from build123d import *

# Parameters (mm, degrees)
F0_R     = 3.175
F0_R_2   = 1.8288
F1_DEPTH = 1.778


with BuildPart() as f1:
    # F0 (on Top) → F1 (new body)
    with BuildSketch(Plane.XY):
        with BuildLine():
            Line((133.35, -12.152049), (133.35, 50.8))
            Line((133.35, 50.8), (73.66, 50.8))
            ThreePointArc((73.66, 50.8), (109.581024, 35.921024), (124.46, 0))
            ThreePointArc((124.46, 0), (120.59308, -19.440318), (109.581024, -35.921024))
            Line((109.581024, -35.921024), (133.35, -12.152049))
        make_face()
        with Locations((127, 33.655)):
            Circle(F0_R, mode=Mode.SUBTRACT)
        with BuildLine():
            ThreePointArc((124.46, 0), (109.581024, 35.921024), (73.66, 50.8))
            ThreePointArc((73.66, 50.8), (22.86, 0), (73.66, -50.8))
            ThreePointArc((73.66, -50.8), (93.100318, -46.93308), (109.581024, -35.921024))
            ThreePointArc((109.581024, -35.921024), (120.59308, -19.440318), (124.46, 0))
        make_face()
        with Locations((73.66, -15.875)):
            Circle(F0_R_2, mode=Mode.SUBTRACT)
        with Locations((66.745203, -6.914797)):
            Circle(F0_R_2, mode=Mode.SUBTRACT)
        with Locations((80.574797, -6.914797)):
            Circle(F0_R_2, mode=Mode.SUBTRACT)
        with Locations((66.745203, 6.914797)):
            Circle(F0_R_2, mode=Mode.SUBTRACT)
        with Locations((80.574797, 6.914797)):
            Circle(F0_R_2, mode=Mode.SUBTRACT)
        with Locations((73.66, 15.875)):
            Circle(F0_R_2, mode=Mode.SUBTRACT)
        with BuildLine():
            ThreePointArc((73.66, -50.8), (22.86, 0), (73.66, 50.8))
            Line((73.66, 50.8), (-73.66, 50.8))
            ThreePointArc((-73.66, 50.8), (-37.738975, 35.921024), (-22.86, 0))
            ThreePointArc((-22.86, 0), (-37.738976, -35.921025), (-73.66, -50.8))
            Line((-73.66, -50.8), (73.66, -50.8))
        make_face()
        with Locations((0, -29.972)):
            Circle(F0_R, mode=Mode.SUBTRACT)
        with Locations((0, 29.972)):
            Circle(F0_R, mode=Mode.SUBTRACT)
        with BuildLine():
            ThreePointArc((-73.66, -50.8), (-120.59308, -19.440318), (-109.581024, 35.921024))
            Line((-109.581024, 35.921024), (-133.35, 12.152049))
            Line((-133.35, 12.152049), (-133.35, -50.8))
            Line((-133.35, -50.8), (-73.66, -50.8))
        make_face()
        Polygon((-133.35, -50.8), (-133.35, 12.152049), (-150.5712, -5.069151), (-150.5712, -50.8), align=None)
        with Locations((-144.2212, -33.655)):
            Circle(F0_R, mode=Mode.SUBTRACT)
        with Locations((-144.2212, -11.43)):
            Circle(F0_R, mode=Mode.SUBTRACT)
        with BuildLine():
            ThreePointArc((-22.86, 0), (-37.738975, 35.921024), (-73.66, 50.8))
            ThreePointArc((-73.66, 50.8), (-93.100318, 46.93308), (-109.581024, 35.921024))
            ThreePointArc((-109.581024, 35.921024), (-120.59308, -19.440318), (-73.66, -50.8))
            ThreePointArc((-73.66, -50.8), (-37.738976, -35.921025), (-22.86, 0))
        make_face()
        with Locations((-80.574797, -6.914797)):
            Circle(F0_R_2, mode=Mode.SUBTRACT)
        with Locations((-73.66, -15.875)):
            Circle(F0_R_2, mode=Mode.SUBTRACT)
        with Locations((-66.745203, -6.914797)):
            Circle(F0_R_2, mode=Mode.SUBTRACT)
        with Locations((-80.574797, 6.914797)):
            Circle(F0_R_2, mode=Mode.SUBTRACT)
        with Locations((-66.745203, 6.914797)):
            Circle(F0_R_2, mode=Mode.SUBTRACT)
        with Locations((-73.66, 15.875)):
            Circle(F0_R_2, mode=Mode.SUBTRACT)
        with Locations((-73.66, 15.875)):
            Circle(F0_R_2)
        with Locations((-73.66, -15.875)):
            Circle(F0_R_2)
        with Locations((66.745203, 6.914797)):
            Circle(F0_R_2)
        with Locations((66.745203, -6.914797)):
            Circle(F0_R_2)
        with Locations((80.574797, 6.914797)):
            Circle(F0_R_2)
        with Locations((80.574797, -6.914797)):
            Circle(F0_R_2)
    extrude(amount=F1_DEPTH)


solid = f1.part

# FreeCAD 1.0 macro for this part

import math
import FreeCAD as App
import Part
import Sketcher

V = App.Vector
Q = App.Units.Quantity

doc = App.newDocument("Part")
body = doc.addObject("PartDesign::Body", "Body")

# Sketch on XY plane
sketch1 = body.newObject("Sketcher::SketchObject", "Sketch")
sketch1.AttachmentSupport = (doc.getObject("XY_Plane"), [""])
sketch1.MapMode = "FlatFace"
sketch1.addGeometry(Part.LineSegment(V(133.3, -12.2, 0), V(133.3, 50.8, 0)), False)
sketch1.addGeometry(Part.LineSegment(V(133.3, 50.8, 0), V(-73.7, 50.8, 0)), False)
sketch1.addGeometry(Part.ArcOfCircle(Part.Circle(V(-73.7, 0, 0), V(0, 0, 1), 50.8), math.radians(90), math.radians(135)), False)
sketch1.addGeometry(Part.LineSegment(V(-109.6, 35.9, 0), V(-133.3, 12.2, 0)), False)
sketch1.addGeometry(Part.LineSegment(V(-133.3, 12.2, 0), V(-150.6, -5.1, 0)), False)
sketch1.addGeometry(Part.LineSegment(V(-150.6, -5.1, 0), V(-150.6, -50.8, 0)), False)
sketch1.addGeometry(Part.LineSegment(V(-150.6, -50.8, 0), V(73.7, -50.8, 0)), False)
sketch1.addGeometry(Part.ArcOfCircle(Part.Circle(V(73.7, 0, 0), V(0, 0, 1), 50.8), math.radians(-90), math.radians(-45)), False)
sketch1.addGeometry(Part.LineSegment(V(109.6, -35.9, 0), V(133.3, -12.2, 0)), False)
sketch1.addGeometry(Part.Circle(V(-144.2, -33.7, 0), V(0, 0, 1), 3.2), False)
sketch1.addGeometry(Part.Circle(V(-144.2, -11.4, 0), V(0, 0, 1), 3.2), False)
sketch1.addGeometry(Part.Circle(V(-80.6, -6.9, 0), V(0, 0, 1), 1.8), False)
sketch1.addGeometry(Part.Circle(V(-66.7, -6.9, 0), V(0, 0, 1), 1.8), False)
sketch1.addGeometry(Part.Circle(V(0, -30, 0), V(0, 0, 1), 3.2), False)
sketch1.addGeometry(Part.Circle(V(73.7, -15.9, 0), V(0, 0, 1), 1.8), False)
sketch1.addGeometry(Part.Circle(V(-80.6, 6.9, 0), V(0, 0, 1), 1.8), False)
sketch1.addGeometry(Part.Circle(V(-66.7, 6.9, 0), V(0, 0, 1), 1.8), False)
sketch1.addGeometry(Part.Circle(V(73.7, 15.9, 0), V(0, 0, 1), 1.8), False)
sketch1.addGeometry(Part.Circle(V(0, 30, 0), V(0, 0, 1), 3.2), False)
sketch1.addGeometry(Part.Circle(V(127, 33.7, 0), V(0, 0, 1), 3.2), False)
sketch1.addConstraint(Sketcher.Constraint("Coincident", 0, 2, 1, 1))
sketch1.addConstraint(Sketcher.Constraint("Tangent", 1, 2, 2, 1))
sketch1.addConstraint(Sketcher.Constraint("Tangent", 2, 2, 3, 1))
sketch1.addConstraint(Sketcher.Constraint("Coincident", 3, 2, 4, 1))
sketch1.addConstraint(Sketcher.Constraint("Coincident", 4, 2, 5, 1))
sketch1.addConstraint(Sketcher.Constraint("Coincident", 5, 2, 6, 1))
sketch1.addConstraint(Sketcher.Constraint("Tangent", 6, 2, 7, 1))
sketch1.addConstraint(Sketcher.Constraint("Tangent", 7, 2, 8, 1))
sketch1.addConstraint(Sketcher.Constraint("Coincident", 8, 2, 0, 1))
sketch1.addConstraint(Sketcher.Constraint("Vertical", 0))
sketch1.addConstraint(Sketcher.Constraint("Horizontal", 1))
sketch1.addConstraint(Sketcher.Constraint("Vertical", 5))
sketch1.addConstraint(Sketcher.Constraint("Horizontal", 6))
sketch1.addConstraint(Sketcher.Constraint("Equal", 2, 7))
sketch1.addConstraint(Sketcher.Constraint("Equal", 9, 10))
sketch1.addConstraint(Sketcher.Constraint("Equal", 11, 12))
sketch1.addConstraint(Sketcher.Constraint("Equal", 10, 13))
sketch1.addConstraint(Sketcher.Constraint("Equal", 12, 14))
sketch1.addConstraint(Sketcher.Constraint("Equal", 14, 15))
sketch1.addConstraint(Sketcher.Constraint("Equal", 15, 16))
sketch1.addConstraint(Sketcher.Constraint("Equal", 16, 17))
sketch1.addConstraint(Sketcher.Constraint("Equal", 13, 18))
sketch1.addConstraint(Sketcher.Constraint("Equal", 18, 19))
sketch1.addConstraint(Sketcher.Constraint("Symmetric", 2, 3, 7, 3, -1, 1))
sketch1.addConstraint(Sketcher.Constraint("Symmetric", 13, 3, 18, 3, -1, 1))
sketch1.addConstraint(Sketcher.Constraint("Symmetric", 3, 2, 8, 2, -1, 1))
sketch1.addConstraint(Sketcher.Constraint("Symmetric", 11, 3, 15, 3, -1))
sketch1.addConstraint(Sketcher.Constraint("Symmetric", 12, 3, 16, 3, -1))
sketch1.addConstraint(Sketcher.Constraint("Symmetric", 14, 3, 17, 3, -1))
sketch1.addConstraint(Sketcher.Constraint("PointOnObject", 2, 3, -1))
sketch1.addConstraint(Sketcher.Constraint("PointOnObject", 13, 3, -2))
sketch1.addConstraint(Sketcher.Constraint("Parallel", 3, 4))
sketch1.addConstraint(Sketcher.Constraint("Horizontal", 11, 3, 12, 3))
sketch1.addConstraint(Sketcher.Constraint("Vertical", 9, 3, 10, 3))
sketch1.addConstraint(Sketcher.Constraint("Vertical", 7, 3, 14, 3))
sketch1.addConstraint(Sketcher.Constraint("Radius", 2, Q("2 in")))
sketch1.addConstraint(Sketcher.Constraint("Diameter", 9, Q("0.25 in")))
sketch1.addConstraint(Sketcher.Constraint("Diameter", 11, Q("0.144 in")))
sketch1.addConstraint(Sketcher.Constraint("DistanceX", -1, 1, 19, 3, Q("5 in")))
sketch1.addConstraint(Sketcher.Constraint("Angle", 3, Q("-135.000001 deg")))
sketch1.addConstraint(Sketcher.Constraint("DistanceX", 1, 2, 1, 1, Q("8.15 in")))
sketch1.addConstraint(Sketcher.Constraint("DistanceX", 2, 3, -1, 1, Q("2.9 in")))
sketch1.addConstraint(Sketcher.Constraint("DistanceY", 17, 3, 19, 3, Q("0.7 in")))
sketch1.addConstraint(Sketcher.Constraint("DistanceX", 6, 1, 6, 2, Q("8.828 in")))
sketch1.addConstraint(Sketcher.Constraint("DistanceY", 10, 3, -1, 1, Q("0.45 in")))
sketch1.addConstraint(Sketcher.Constraint("DistanceY", 13, 3, -1, 1, Q("1.18 in")))
sketch1.addConstraint(Sketcher.Constraint("DistanceY", 14, 3, 17, 3, Q("1.25 in")))
sketch1.addConstraint(Sketcher.Constraint("DistanceX", 4, 2, 10, 3, Q("0.25 in")))
sketch1.addConstraint(Sketcher.Constraint("DistanceY", 9, 3, -1, 1, Q("1.325 in")))
sketch1.addConstraint(Sketcher.Constraint("DistanceX", 2, 2, 16, 3, Q("42.835821 mm")))
sketch1.addConstraint(Sketcher.Constraint("DistanceY", 11, 3, 2, 2, Q("42.835821 mm")))
sketch1.addConstraint(Sketcher.Constraint("DistanceX", 11, 3, -1, 1, Q("80.574797 mm")))
pad1 = body.newObject("PartDesign::Pad", "Pad")
pad1.Profile = sketch1
pad1.Length = Q("0.07 in")

doc.recompute()
